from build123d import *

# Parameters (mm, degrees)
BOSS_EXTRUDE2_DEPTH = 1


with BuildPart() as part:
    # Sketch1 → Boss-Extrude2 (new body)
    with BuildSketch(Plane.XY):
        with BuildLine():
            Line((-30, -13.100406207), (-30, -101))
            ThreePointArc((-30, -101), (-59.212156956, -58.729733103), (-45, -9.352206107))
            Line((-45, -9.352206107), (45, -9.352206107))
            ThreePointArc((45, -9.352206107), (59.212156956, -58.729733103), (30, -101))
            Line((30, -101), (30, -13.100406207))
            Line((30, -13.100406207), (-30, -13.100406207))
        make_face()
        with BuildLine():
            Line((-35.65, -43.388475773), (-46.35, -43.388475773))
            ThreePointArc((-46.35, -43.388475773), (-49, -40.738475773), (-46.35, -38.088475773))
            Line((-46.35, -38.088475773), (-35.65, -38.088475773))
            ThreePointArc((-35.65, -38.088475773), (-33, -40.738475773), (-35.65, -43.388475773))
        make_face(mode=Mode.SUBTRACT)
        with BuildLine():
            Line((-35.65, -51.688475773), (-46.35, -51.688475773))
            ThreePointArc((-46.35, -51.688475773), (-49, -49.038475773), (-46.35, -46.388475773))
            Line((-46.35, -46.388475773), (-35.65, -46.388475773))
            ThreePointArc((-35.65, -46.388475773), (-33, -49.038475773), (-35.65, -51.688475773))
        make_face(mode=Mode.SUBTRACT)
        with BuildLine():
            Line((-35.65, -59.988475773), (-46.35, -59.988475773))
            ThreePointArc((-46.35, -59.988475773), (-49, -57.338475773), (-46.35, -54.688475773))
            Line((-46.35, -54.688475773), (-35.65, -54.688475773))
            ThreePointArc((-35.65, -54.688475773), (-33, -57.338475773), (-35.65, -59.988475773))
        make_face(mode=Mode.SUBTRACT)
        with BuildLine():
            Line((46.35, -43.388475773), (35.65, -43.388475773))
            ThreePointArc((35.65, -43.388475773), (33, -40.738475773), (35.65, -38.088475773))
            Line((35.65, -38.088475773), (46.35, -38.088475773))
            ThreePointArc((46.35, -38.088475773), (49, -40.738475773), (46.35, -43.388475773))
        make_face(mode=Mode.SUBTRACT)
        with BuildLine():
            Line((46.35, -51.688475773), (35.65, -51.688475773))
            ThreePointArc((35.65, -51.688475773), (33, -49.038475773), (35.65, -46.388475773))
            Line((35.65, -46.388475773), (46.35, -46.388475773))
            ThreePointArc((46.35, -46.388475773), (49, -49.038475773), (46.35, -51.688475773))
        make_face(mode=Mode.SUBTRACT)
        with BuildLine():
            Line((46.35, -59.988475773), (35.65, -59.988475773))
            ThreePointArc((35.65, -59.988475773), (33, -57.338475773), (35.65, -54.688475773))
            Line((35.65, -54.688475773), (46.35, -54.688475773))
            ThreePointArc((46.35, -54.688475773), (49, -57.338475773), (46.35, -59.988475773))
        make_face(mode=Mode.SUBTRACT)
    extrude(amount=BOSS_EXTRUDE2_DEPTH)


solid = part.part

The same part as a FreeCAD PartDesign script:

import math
import FreeCAD as App
import Part
import Sketcher
from FreeCAD import Vector

doc = App.newDocument("Part")
body = doc.addObject("PartDesign::Body", "Body")

# Sketch on XY plane
sketch1 = body.newObject("Sketcher::SketchObject", "Sketch")
sketch1.AttachmentSupport = (doc.getObject("XY_Plane"), [""])
sketch1.MapMode = "FlatFace"
sketch1.addGeometry([
    Part.LineSegment(Vector(-30, -101, 0), Vector(-30, -13.1, 0)),  # 0
    Part.LineSegment(Vector(-30, -13.1, 0), Vector(30, -13.1, 0)),  # 1
    Part.LineSegment(Vector(30, -13.1, 0), Vector(30, -101, 0)),  # 2
    Part.ArcOfCircle(Part.Circle(Vector(0, -49, 0), Vector(0, 0, 1), 60), math.radians(-60), math.radians(41)),  # 3
    Part.LineSegment(Vector(45, -9.4, 0), Vector(-45, -9.4, 0)),  # 4
    Part.ArcOfCircle(Part.Circle(Vector(0, -49, 0), Vector(0, 0, 1), 60), math.radians(139), math.radians(240)),  # 5
    Part.LineSegment(Vector(46.4, -60, 0), Vector(35.6, -60, 0)),  # 6
    Part.ArcOfCircle(Part.Circle(Vector(35.6, -57.3, 0), Vector(0, 0, 1), 2.6), math.radians(90), math.radians(270)),  # 7
    Part.LineSegment(Vector(35.6, -54.7, 0), Vector(46.4, -54.7, 0)),  # 8
    Part.ArcOfCircle(Part.Circle(Vector(46.4, -57.3, 0), Vector(0, 0, 1), 2.6), math.radians(-90), math.radians(90)),  # 9
    Part.LineSegment(Vector(46.4, -51.7, 0), Vector(35.6, -51.7, 0)),  # 10
    Part.ArcOfCircle(Part.Circle(Vector(35.6, -49, 0), Vector(0, 0, 1), 2.6), math.radians(90), math.radians(270)),  # 11
    Part.LineSegment(Vector(35.6, -46.4, 0), Vector(46.4, -46.4, 0)),  # 12
    Part.ArcOfCircle(Part.Circle(Vector(46.4, -49, 0), Vector(0, 0, 1), 2.6), math.radians(-90), math.radians(90)),  # 13
    Part.LineSegment(Vector(-35.6, -60, 0), Vector(-46.4, -60, 0)),  # 14
    Part.ArcOfCircle(Part.Circle(Vector(-46.4, -57.3, 0), Vector(0, 0, 1), 2.6), math.radians(90), math.radians(270)),  # 15
    Part.LineSegment(Vector(-46.4, -54.7, 0), Vector(-35.6, -54.7, 0)),  # 16
    Part.ArcOfCircle(Part.Circle(Vector(-35.6, -57.3, 0), Vector(0, 0, 1), 2.6), math.radians(-90), math.radians(90)),  # 17
    Part.LineSegment(Vector(-35.6, -51.7, 0), Vector(-46.4, -51.7, 0)),  # 18
    Part.ArcOfCircle(Part.Circle(Vector(-46.4, -49, 0), Vector(0, 0, 1), 2.6), math.radians(90), math.radians(270)),  # 19
    Part.LineSegment(Vector(-46.4, -46.4, 0), Vector(-35.6, -46.4, 0)),  # 20
    Part.ArcOfCircle(Part.Circle(Vector(-35.6, -49, 0), Vector(0, 0, 1), 2.6), math.radians(-90), math.radians(90)),  # 21
    Part.LineSegment(Vector(46.4, -43.4, 0), Vector(35.6, -43.4, 0)),  # 22
    Part.ArcOfCircle(Part.Circle(Vector(35.6, -40.7, 0), Vector(0, 0, 1), 2.6), math.radians(90), math.radians(270)),  # 23
    Part.LineSegment(Vector(35.6, -38.1, 0), Vector(46.4, -38.1, 0)),  # 24
    Part.ArcOfCircle(Part.Circle(Vector(46.4, -40.7, 0), Vector(0, 0, 1), 2.6), math.radians(-90), math.radians(90)),  # 25
    Part.LineSegment(Vector(-35.6, -43.4, 0), Vector(-46.4, -43.4, 0)),  # 26
    Part.ArcOfCircle(Part.Circle(Vector(-46.4, -40.7, 0), Vector(0, 0, 1), 2.6), math.radians(90), math.radians(270)),  # 27
    Part.LineSegment(Vector(-46.4, -38.1, 0), Vector(-35.6, -38.1, 0)),  # 28
    Part.ArcOfCircle(Part.Circle(Vector(-35.6, -40.7, 0), Vector(0, 0, 1), 2.6), math.radians(-90), math.radians(90)),  # 29
], False)
sketch1.addConstraint([
    Sketcher.Constraint("Coincident", 0, 2, 1, 1),
    Sketcher.Constraint("Coincident", 1, 2, 2, 1),
    Sketcher.Constraint("Coincident", 2, 2, 3, 1),
    Sketcher.Constraint("Coincident", 3, 2, 4, 1),
    Sketcher.Constraint("Coincident", 4, 2, 5, 1),
    Sketcher.Constraint("Coincident", 5, 2, 0, 1),
    Sketcher.Constraint("Tangent", 6, 2, 7, 2),
    Sketcher.Constraint("Tangent", 7, 1, 8, 1),
    Sketcher.Constraint("Tangent", 8, 2, 9, 2),
    Sketcher.Constraint("Tangent", 9, 1, 6, 1),
    Sketcher.Constraint("Tangent", 10, 2, 11, 2),
    Sketcher.Constraint("Tangent", 11, 1, 12, 1),
    Sketcher.Constraint("Tangent", 12, 2, 13, 2),
    Sketcher.Constraint("Tangent", 13, 1, 10, 1),
    Sketcher.Constraint("Tangent", 14, 2, 15, 2),
    Sketcher.Constraint("Tangent", 15, 1, 16, 1),
    Sketcher.Constraint("Tangent", 16, 2, 17, 2),
    Sketcher.Constraint("Tangent", 17, 1, 14, 1),
    Sketcher.Constraint("Tangent", 18, 2, 19, 2),
    Sketcher.Constraint("Tangent", 19, 1, 20, 1),
    Sketcher.Constraint("Tangent", 20, 2, 21, 2),
    Sketcher.Constraint("Tangent", 21, 1, 18, 1),
    Sketcher.Constraint("Tangent", 22, 2, 23, 2),
    Sketcher.Constraint("Tangent", 23, 1, 24, 1),
    Sketcher.Constraint("Tangent", 24, 2, 25, 2),
    Sketcher.Constraint("Tangent", 25, 1, 22, 1),
    Sketcher.Constraint("Tangent", 26, 2, 27, 2),
    Sketcher.Constraint("Tangent", 27, 1, 28, 1),
    Sketcher.Constraint("Tangent", 28, 2, 29, 2),
    Sketcher.Constraint("Tangent", 29, 1, 26, 1),
    Sketcher.Constraint("Vertical", 0),
    Sketcher.Constraint("Horizontal", 1),
    Sketcher.Constraint("Vertical", 2),
    Sketcher.Constraint("Horizontal", 4),
    Sketcher.Constraint("Horizontal", 6),
    Sketcher.Constraint("Horizontal", 8),
    Sketcher.Constraint("Horizontal", 10),
    Sketcher.Constraint("Horizontal", 12),
    Sketcher.Constraint("Horizontal", 14),
    Sketcher.Constraint("Horizontal", 16),
    Sketcher.Constraint("Horizontal", 18),
    Sketcher.Constraint("Horizontal", 20),
    Sketcher.Constraint("Horizontal", 22),
    Sketcher.Constraint("Horizontal", 24),
    Sketcher.Constraint("Horizontal", 26),
    Sketcher.Constraint("Horizontal", 28),
    Sketcher.Constraint("Coincident", 5, 3, 3, 3),
    Sketcher.Constraint("Equal", 3, 5),
    Sketcher.Constraint("Equal", 9, 11),
    Sketcher.Constraint("Equal", 13, 15),
    Sketcher.Constraint("Equal", 17, 19),
    Sketcher.Constraint("Equal", 21, 23),
    Sketcher.Constraint("Equal", 25, 27),
    Sketcher.Constraint("Symmetric", 9, 3, 15, 3, -2),
    Sketcher.Constraint("Symmetric", 13, 3, 19, 3, -2),
    Sketcher.Constraint("Symmetric", 25, 3, 27, 3, -2),
    Sketcher.Constraint("Symmetric", 2, 2, 5, 2, -2),
    Sketcher.Constraint("Horizontal", 5, 3, 11, 3),
    Sketcher.Constraint("Vertical", 7, 3, 11, 3),
    Sketcher.Constraint("Vertical", 9, 3, 13, 3),
    Sketcher.Constraint("Vertical", 17, 3, 21, 3),
    Sketcher.Constraint("Vertical", 11, 3, 23, 3),
    Sketcher.Constraint("Vertical", 13, 3, 25, 3),
    Sketcher.Constraint("Vertical", 21, 3, 29, 3),
    Sketcher.Constraint("Equal", 12, 14),
    Sketcher.Constraint("Radius", 3, 60.0),
    Sketcher.Constraint("DistanceX", 1, 1, 1, 2, 60.0),
    Sketcher.Constraint("DistanceX", 4, 2, 4, 1, 90.0),
    Sketcher.Constraint("Radius", 7, 2.65),
    Sketcher.Constraint("DistanceX", 6, 2, 6, 1, 10.7),
    Sketcher.Constraint("DistanceY", 2, 2, -1, 1, 101.0),
    Sketcher.Constraint("DistanceX", 15, 3, 7, 3, 82.0),
    Sketcher.Constraint("DistanceY", 7, 1, 10, 2, 3.0),
    Sketcher.Constraint("DistanceY", 11, 1, 22, 2, 3.0),
    Sketcher.Constraint("DistanceY", 1, 2, 3, 2, 3.7482),
])
pad1 = body.newObject("PartDesign::Pad", "Pad")
pad1.Profile = sketch1
pad1.Length = 1

doc.recompute()
